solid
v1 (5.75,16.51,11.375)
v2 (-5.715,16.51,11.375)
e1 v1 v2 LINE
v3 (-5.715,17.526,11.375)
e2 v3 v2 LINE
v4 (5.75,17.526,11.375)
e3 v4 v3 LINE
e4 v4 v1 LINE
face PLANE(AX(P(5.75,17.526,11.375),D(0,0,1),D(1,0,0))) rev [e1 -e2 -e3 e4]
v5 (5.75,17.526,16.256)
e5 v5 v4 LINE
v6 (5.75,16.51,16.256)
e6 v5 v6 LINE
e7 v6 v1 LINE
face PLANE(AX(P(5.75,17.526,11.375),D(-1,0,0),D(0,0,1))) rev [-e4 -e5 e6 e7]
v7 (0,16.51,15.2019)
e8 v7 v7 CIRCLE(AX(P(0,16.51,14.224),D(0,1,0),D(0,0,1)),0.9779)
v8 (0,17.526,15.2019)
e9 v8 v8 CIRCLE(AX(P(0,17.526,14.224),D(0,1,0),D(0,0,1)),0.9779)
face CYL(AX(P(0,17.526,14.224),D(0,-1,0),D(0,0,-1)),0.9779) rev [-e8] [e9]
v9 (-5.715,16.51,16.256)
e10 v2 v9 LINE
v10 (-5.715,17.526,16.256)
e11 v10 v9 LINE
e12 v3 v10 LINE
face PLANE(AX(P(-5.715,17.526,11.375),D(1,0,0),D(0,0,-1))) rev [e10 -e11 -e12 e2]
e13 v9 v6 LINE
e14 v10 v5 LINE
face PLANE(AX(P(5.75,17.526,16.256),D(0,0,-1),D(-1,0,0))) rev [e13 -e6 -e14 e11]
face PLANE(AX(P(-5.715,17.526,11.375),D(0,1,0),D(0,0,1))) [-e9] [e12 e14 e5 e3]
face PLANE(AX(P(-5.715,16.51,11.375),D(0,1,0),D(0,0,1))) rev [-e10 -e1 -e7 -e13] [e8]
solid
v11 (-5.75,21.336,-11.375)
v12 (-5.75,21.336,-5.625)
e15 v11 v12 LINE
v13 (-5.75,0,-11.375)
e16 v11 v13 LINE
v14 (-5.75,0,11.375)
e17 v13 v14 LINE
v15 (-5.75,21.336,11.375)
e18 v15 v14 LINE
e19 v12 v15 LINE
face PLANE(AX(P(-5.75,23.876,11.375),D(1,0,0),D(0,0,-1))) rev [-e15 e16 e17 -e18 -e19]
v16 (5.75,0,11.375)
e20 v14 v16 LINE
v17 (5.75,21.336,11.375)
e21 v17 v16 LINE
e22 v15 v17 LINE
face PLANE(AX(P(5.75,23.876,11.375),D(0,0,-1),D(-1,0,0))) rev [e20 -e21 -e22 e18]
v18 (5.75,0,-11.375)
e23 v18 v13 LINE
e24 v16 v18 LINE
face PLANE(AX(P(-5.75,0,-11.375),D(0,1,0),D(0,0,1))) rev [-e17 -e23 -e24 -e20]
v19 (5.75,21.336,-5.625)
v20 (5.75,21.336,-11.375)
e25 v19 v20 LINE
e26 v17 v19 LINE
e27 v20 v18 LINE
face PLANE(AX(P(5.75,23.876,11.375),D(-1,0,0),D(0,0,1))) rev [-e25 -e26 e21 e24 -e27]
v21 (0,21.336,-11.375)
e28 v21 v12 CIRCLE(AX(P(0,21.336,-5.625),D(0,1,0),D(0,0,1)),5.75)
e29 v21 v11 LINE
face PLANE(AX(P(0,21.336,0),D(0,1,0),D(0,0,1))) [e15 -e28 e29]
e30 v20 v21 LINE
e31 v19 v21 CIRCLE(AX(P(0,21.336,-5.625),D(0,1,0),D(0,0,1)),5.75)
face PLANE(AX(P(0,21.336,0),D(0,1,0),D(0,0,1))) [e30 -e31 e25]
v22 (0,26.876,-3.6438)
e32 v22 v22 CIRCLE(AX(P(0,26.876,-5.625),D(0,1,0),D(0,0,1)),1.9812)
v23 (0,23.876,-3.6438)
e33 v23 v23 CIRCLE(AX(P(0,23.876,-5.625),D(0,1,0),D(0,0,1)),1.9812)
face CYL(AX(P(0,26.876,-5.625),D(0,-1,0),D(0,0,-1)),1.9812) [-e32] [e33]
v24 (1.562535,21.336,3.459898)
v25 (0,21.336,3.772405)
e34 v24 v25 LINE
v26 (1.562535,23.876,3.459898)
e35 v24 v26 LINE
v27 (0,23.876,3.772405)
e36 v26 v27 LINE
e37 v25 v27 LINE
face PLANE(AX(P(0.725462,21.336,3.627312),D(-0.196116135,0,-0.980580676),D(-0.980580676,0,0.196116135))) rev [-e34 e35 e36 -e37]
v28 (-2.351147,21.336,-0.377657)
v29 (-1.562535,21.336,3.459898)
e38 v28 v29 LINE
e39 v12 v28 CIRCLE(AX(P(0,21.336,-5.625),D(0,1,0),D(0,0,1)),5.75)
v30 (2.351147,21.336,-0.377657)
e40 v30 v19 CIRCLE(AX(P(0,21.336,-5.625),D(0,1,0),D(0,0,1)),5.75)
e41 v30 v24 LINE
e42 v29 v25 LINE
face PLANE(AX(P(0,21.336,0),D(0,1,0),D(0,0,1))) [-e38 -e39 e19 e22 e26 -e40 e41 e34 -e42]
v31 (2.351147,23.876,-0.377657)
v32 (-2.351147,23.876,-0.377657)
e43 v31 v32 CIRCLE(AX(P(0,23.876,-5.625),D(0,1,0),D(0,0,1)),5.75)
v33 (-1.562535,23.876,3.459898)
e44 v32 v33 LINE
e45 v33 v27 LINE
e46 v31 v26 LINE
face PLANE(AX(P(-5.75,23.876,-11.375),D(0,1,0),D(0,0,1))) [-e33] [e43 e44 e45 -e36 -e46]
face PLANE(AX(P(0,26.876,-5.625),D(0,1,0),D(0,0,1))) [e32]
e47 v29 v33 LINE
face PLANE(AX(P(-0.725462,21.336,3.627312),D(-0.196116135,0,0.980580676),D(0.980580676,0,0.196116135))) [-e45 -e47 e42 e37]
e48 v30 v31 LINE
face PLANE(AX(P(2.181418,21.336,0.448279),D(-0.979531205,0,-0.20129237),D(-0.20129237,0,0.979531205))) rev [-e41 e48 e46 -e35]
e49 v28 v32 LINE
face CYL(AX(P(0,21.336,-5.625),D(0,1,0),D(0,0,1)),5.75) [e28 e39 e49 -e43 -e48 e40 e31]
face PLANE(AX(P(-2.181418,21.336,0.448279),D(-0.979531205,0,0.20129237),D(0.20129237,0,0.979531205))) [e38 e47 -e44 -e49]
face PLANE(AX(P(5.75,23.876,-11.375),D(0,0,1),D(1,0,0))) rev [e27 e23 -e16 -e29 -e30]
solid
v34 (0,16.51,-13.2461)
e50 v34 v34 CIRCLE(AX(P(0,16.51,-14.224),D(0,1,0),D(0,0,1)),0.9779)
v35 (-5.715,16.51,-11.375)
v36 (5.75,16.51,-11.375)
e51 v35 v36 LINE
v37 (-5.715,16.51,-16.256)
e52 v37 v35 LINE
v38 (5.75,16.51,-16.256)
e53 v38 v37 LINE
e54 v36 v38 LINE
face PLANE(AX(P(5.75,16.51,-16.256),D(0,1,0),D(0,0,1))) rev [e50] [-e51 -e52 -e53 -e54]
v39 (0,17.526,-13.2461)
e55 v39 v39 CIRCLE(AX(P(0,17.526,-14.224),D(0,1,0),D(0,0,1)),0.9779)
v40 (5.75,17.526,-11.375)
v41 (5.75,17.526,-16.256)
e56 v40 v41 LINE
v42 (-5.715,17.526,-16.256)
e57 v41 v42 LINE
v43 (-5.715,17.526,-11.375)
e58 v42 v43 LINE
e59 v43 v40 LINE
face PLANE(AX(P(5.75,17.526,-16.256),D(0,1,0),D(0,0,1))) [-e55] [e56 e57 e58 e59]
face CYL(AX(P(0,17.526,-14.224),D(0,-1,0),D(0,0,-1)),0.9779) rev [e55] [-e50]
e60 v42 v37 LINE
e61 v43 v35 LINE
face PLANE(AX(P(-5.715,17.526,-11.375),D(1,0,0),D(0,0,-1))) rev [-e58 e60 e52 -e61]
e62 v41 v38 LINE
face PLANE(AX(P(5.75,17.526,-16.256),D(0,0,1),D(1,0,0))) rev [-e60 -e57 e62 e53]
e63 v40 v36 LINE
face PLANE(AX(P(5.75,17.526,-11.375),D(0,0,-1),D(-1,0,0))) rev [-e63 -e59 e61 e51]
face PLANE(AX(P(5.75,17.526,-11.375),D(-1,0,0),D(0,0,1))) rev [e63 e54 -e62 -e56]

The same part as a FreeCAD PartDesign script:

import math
import FreeCAD as App
import Part
import Sketcher
from FreeCAD import Vector
Q = App.Units.Quantity


def add_polygon(sketch, points):
    """Adds a closed chain of lines whose ends are joined by coincident constraints."""
    first, n = sketch.GeometryCount, len(points)
    for a, b in zip(points, points[1:] + points[:1]):
        sketch.addGeometry(Part.LineSegment(App.Vector(*a, 0), App.Vector(*b, 0)), False)
    for i in range(n):
        sketch.addConstraint(Sketcher.Constraint("Coincident", first + i, 2, first + (i + 1) % n, 1))

doc = App.newDocument("Part")
body = doc.addObject("PartDesign::Body", "Body")

# Sketch on XZ plane
sketch1 = body.newObject("Sketcher::SketchObject", "Sketch")
sketch1.AttachmentSupport = (doc.getObject("XZ_Plane"), [""])
sketch1.MapMode = "FlatFace"
add_polygon(sketch1, [(-5.75, -11.375), (-5.75, 11.375), (5.75, 11.375), (5.75, -11.375)])  # lines 0-3
sketch1.addConstraint([
    Sketcher.Constraint("Vertical", 0),
    Sketcher.Constraint("Horizontal", 1),
    Sketcher.Constraint("Vertical", 2),
    Sketcher.Constraint("Horizontal", 3),
    Sketcher.Constraint("Symmetric", 0, 2, 2, 2, -1, 1),
    Sketcher.Constraint("DistanceX", 1, 1, 1, 2, 11.5),
    Sketcher.Constraint("DistanceY", 0, 1, 0, 2, 22.75),
])
pad1 = body.newObject("PartDesign::Pad", "Pad")
pad1.Profile = sketch1
pad1.Length = Q("0.94 in")
pad1.Reversed = True

# Sketch on XZ plane
sketch2 = body.newObject("Sketcher::SketchObject", "Sketch001")
sketch2.AttachmentSupport = (doc.getObject("XZ_Plane"), [""])
sketch2.MapMode = "FlatFace"
sketch2.AttachmentOffset = App.Placement(Vector(0, 0, -0.94 * 25.4), App.Rotation())
sketch2.addGeometry([
    Part.LineSegment(Vector(2.351147, -0.377657, 0), Vector(1.562535, 3.459898, 0)),  # 0
    Part.LineSegment(Vector(1.562535, 3.459898, 0), Vector(0, 3.772405, 0)),  # 1
    Part.LineSegment(Vector(0, 3.772405, 0), Vector(-1.562535, 3.459898, 0)),  # 2
    Part.LineSegment(Vector(-1.562535, 3.459898, 0), Vector(-2.351147, -0.377657, 0)),  # 3
    Part.ArcOfCircle(Part.Circle(Vector(0, -5.625, 0), Vector(0, 0, 1), 5.75), math.radians(114.135448), math.radians(180)),  # 4
    Part.LineSegment(Vector(-5.75, -5.625, 0), Vector(-5.75, 11.375, 0)),  # 5
    Part.LineSegment(Vector(-5.75, 11.375, 0), Vector(5.75, 11.375, 0)),  # 6
    Part.LineSegment(Vector(5.75, 11.375, 0), Vector(5.75, -5.625, 0)),  # 7
    Part.ArcOfCircle(Part.Circle(Vector(0, -5.625, 0), Vector(0, 0, 1), 5.75), math.radians(0), math.radians(65.864552)),  # 8
    Part.ArcOfCircle(Part.Circle(Vector(0, -5.625, 0), Vector(0, 0, 1), 5.75), math.radians(-90), math.radians(0)),  # 9
    Part.LineSegment(Vector(5.75, -5.625, 0), Vector(5.75, -11.375, 0)),  # 10
    Part.LineSegment(Vector(5.75, -11.375, 0), Vector(0, -11.375, 0)),  # 11
    Part.ArcOfCircle(Part.Circle(Vector(0, -5.625, 0), Vector(0, 0, 1), 5.75), math.radians(180), math.radians(270)),  # 12
    Part.LineSegment(Vector(0, -11.375, 0), Vector(-5.75, -11.375, 0)),  # 13
    Part.LineSegment(Vector(-5.75, -11.375, 0), Vector(-5.75, -5.625, 0)),  # 14
], False)
sketch2.addConstraint([
    Sketcher.Constraint("Coincident", 0, 2, 1, 1),
    Sketcher.Constraint("Coincident", 1, 2, 2, 1),
    Sketcher.Constraint("Coincident", 2, 2, 3, 1),
    Sketcher.Constraint("Coincident", 3, 2, 4, 1),
    Sketcher.Constraint("Tangent", 4, 2, 5, 1),
    Sketcher.Constraint("Coincident", 5, 2, 6, 1),
    Sketcher.Constraint("Coincident", 6, 2, 7, 1),
    Sketcher.Constraint("Tangent", 7, 2, 8, 1),
    Sketcher.Constraint("Coincident", 8, 2, 0, 1),
    Sketcher.Constraint("Tangent", 9, 2, 10, 1),
    Sketcher.Constraint("Coincident", 10, 2, 11, 1),
    Sketcher.Constraint("Tangent", 11, 2, 9, 1),
    Sketcher.Constraint("Tangent", 12, 2, 13, 1),
    Sketcher.Constraint("Coincident", 13, 2, 14, 1),
    Sketcher.Constraint("Tangent", 14, 2, 12, 1),
    Sketcher.Constraint("Vertical", 5),
    Sketcher.Constraint("Horizontal", 6),
    Sketcher.Constraint("Vertical", 7),
    Sketcher.Constraint("Vertical", 10),
    Sketcher.Constraint("Horizontal", 11),
    Sketcher.Constraint("Horizontal", 13),
    Sketcher.Constraint("Vertical", 14),
    Sketcher.Constraint("Coincident", 8, 3, 4, 3),
    Sketcher.Constraint("Coincident", 9, 3, 4, 3),
    Sketcher.Constraint("Coincident", 12, 3, 4, 3),
    Sketcher.Constraint("Equal", 4, 8),
    Sketcher.Constraint("Equal", 8, 9),
    Sketcher.Constraint("Equal", 9, 12),
    Sketcher.Constraint("Symmetric", 5, 2, 10, 2, -1, 1),
    Sketcher.Constraint("Symmetric", 0, 2, 2, 2, -2),
    Sketcher.Constraint("PointOnObject", 1, 2, -2),
    Sketcher.Constraint("Horizontal", 3, 2, 8, 2),
    Sketcher.Constraint("Radius", 4, 5.75),
    Sketcher.Constraint("DistanceY", 5, 1, 5, 2, 17.0),
    Sketcher.Constraint("Distance", 1, 1.593479),
    Sketcher.Constraint("DistanceX", 2, 2, 0, 2, 3.125069),
    Sketcher.Constraint("DistanceY", 3, 2, 1, 2, 4.150062),
    Sketcher.Constraint("DistanceX", 3, 2, 0, 2, 3.913682),
])
pocket1 = body.newObject("PartDesign::Pocket", "Pocket")
pocket1.Profile = sketch2
pocket1.Length = Q("0.1 in")
pocket1.Reversed = True

# Sketch on XZ plane
sketch3 = body.newObject("Sketcher::SketchObject", "Sketch002")
sketch3.AttachmentSupport = (doc.getObject("XZ_Plane"), [""])
sketch3.MapMode = "FlatFace"
sketch3.AttachmentOffset = App.Placement(Vector(0, 0, -0.94 * 25.4), App.Rotation())
sketch3.addGeometry(Part.Circle(Vector(0, -5.625, 0), Vector(0, 0, 1), 1.9812), False)
sketch3.addConstraint([
    Sketcher.Constraint("PointOnObject", 0, 3, -2),
    Sketcher.Constraint("Diameter", 0, Q("0.156 in")),
    Sketcher.Constraint("DistanceY", 0, 3, -1, 1, 5.625),
])
pad2 = body.newObject("PartDesign::Pad", "Pad001")
pad2.Profile = sketch3
pad2.Length = 3
pad2.Reversed = True
body2 = doc.addObject("PartDesign::Body", "Body001")

# Sketch on XZ plane
sketch4 = body2.newObject("Sketcher::SketchObject", "Sketch003")
sketch4.AttachmentSupport = (doc.getObject("XZ_Plane001"), [""])
sketch4.MapMode = "FlatFace"
sketch4.AttachmentOffset = App.Placement(Vector(0, 0, -0.65 * 25.4), App.Rotation())
add_polygon(sketch4, [(5.75, -11.375), (5.75, -16.256), (-5.715, -16.256), (-5.715, -11.375)])  # lines 0-3
sketch4.addGeometry(Part.Circle(Vector(0, -14.224, 0), Vector(0, 0, 1), 0.9779), False)  # 4
sketch4.addConstraint([
    Sketcher.Constraint("Vertical", 0),
    Sketcher.Constraint("Horizontal", 1),
    Sketcher.Constraint("Vertical", 2),
    Sketcher.Constraint("Horizontal", 3),
    Sketcher.Constraint("PointOnObject", 4, 3, -2),
    Sketcher.Constraint("Diameter", 4, Q("0.077 in")),
    Sketcher.Constraint("DistanceY", 4, 3, -1, 1, Q("0.56 in")),
    Sketcher.Constraint("DistanceY", 0, 2, -1, 1, Q("0.64 in")),
    Sketcher.Constraint("DistanceX", 1, 2, -1, 1, Q("0.225 in")),
    Sketcher.Constraint("DistanceX", 1, 2, 1, 1, 11.465),
    Sketcher.Constraint("DistanceY", 0, 2, 0, 1, 4.881),
])
pad3 = body2.newObject("PartDesign::Pad", "Pad002")
pad3.Profile = sketch4
pad3.Length = Q("0.04 in")
pad3.Reversed = True
body3 = doc.addObject("PartDesign::Body", "Body002")

# Sketch on XZ plane
sketch5 = body3.newObject("Sketcher::SketchObject", "Sketch004")
sketch5.AttachmentSupport = (doc.getObject("XZ_Plane002"), [""])
sketch5.MapMode = "FlatFace"
sketch5.AttachmentOffset = App.Placement(Vector(0, 0, -0.65 * 25.4), App.Rotation())
add_polygon(sketch5, [(5.75, 16.256), (5.75, 11.375), (-5.715, 11.375), (-5.715, 16.256)])  # lines 0-3
sketch5.addGeometry(Part.Circle(Vector(0, 14.224, 0), Vector(0, 0, 1), 0.9779), False)  # 4
sketch5.addConstraint([
    Sketcher.Constraint("Vertical", 0),
    Sketcher.Constraint("Horizontal", 1),
    Sketcher.Constraint("Vertical", 2),
    Sketcher.Constraint("Horizontal", 3),
    Sketcher.Constraint("PointOnObject", 4, 3, -2),
    Sketcher.Constraint("Diameter", 4, Q("0.077 in")),
    Sketcher.Constraint("DistanceY", -1, 1, 4, 3, Q("0.56 in")),
    Sketcher.Constraint("DistanceY", -1, 1, 2, 2, Q("0.64 in")),
    Sketcher.Constraint("DistanceX", 1, 2, -1, 1, Q("0.225 in")),
    Sketcher.Constraint("DistanceX", 1, 2, 1, 1, 11.465),
    Sketcher.Constraint("DistanceY", 0, 2, 0, 1, 4.881),
])
pad4 = body3.newObject("PartDesign::Pad", "Pad003")
pad4.Profile = sketch5
pad4.Length = Q("0.04 in")
pad4.Reversed = True

doc.recompute()
